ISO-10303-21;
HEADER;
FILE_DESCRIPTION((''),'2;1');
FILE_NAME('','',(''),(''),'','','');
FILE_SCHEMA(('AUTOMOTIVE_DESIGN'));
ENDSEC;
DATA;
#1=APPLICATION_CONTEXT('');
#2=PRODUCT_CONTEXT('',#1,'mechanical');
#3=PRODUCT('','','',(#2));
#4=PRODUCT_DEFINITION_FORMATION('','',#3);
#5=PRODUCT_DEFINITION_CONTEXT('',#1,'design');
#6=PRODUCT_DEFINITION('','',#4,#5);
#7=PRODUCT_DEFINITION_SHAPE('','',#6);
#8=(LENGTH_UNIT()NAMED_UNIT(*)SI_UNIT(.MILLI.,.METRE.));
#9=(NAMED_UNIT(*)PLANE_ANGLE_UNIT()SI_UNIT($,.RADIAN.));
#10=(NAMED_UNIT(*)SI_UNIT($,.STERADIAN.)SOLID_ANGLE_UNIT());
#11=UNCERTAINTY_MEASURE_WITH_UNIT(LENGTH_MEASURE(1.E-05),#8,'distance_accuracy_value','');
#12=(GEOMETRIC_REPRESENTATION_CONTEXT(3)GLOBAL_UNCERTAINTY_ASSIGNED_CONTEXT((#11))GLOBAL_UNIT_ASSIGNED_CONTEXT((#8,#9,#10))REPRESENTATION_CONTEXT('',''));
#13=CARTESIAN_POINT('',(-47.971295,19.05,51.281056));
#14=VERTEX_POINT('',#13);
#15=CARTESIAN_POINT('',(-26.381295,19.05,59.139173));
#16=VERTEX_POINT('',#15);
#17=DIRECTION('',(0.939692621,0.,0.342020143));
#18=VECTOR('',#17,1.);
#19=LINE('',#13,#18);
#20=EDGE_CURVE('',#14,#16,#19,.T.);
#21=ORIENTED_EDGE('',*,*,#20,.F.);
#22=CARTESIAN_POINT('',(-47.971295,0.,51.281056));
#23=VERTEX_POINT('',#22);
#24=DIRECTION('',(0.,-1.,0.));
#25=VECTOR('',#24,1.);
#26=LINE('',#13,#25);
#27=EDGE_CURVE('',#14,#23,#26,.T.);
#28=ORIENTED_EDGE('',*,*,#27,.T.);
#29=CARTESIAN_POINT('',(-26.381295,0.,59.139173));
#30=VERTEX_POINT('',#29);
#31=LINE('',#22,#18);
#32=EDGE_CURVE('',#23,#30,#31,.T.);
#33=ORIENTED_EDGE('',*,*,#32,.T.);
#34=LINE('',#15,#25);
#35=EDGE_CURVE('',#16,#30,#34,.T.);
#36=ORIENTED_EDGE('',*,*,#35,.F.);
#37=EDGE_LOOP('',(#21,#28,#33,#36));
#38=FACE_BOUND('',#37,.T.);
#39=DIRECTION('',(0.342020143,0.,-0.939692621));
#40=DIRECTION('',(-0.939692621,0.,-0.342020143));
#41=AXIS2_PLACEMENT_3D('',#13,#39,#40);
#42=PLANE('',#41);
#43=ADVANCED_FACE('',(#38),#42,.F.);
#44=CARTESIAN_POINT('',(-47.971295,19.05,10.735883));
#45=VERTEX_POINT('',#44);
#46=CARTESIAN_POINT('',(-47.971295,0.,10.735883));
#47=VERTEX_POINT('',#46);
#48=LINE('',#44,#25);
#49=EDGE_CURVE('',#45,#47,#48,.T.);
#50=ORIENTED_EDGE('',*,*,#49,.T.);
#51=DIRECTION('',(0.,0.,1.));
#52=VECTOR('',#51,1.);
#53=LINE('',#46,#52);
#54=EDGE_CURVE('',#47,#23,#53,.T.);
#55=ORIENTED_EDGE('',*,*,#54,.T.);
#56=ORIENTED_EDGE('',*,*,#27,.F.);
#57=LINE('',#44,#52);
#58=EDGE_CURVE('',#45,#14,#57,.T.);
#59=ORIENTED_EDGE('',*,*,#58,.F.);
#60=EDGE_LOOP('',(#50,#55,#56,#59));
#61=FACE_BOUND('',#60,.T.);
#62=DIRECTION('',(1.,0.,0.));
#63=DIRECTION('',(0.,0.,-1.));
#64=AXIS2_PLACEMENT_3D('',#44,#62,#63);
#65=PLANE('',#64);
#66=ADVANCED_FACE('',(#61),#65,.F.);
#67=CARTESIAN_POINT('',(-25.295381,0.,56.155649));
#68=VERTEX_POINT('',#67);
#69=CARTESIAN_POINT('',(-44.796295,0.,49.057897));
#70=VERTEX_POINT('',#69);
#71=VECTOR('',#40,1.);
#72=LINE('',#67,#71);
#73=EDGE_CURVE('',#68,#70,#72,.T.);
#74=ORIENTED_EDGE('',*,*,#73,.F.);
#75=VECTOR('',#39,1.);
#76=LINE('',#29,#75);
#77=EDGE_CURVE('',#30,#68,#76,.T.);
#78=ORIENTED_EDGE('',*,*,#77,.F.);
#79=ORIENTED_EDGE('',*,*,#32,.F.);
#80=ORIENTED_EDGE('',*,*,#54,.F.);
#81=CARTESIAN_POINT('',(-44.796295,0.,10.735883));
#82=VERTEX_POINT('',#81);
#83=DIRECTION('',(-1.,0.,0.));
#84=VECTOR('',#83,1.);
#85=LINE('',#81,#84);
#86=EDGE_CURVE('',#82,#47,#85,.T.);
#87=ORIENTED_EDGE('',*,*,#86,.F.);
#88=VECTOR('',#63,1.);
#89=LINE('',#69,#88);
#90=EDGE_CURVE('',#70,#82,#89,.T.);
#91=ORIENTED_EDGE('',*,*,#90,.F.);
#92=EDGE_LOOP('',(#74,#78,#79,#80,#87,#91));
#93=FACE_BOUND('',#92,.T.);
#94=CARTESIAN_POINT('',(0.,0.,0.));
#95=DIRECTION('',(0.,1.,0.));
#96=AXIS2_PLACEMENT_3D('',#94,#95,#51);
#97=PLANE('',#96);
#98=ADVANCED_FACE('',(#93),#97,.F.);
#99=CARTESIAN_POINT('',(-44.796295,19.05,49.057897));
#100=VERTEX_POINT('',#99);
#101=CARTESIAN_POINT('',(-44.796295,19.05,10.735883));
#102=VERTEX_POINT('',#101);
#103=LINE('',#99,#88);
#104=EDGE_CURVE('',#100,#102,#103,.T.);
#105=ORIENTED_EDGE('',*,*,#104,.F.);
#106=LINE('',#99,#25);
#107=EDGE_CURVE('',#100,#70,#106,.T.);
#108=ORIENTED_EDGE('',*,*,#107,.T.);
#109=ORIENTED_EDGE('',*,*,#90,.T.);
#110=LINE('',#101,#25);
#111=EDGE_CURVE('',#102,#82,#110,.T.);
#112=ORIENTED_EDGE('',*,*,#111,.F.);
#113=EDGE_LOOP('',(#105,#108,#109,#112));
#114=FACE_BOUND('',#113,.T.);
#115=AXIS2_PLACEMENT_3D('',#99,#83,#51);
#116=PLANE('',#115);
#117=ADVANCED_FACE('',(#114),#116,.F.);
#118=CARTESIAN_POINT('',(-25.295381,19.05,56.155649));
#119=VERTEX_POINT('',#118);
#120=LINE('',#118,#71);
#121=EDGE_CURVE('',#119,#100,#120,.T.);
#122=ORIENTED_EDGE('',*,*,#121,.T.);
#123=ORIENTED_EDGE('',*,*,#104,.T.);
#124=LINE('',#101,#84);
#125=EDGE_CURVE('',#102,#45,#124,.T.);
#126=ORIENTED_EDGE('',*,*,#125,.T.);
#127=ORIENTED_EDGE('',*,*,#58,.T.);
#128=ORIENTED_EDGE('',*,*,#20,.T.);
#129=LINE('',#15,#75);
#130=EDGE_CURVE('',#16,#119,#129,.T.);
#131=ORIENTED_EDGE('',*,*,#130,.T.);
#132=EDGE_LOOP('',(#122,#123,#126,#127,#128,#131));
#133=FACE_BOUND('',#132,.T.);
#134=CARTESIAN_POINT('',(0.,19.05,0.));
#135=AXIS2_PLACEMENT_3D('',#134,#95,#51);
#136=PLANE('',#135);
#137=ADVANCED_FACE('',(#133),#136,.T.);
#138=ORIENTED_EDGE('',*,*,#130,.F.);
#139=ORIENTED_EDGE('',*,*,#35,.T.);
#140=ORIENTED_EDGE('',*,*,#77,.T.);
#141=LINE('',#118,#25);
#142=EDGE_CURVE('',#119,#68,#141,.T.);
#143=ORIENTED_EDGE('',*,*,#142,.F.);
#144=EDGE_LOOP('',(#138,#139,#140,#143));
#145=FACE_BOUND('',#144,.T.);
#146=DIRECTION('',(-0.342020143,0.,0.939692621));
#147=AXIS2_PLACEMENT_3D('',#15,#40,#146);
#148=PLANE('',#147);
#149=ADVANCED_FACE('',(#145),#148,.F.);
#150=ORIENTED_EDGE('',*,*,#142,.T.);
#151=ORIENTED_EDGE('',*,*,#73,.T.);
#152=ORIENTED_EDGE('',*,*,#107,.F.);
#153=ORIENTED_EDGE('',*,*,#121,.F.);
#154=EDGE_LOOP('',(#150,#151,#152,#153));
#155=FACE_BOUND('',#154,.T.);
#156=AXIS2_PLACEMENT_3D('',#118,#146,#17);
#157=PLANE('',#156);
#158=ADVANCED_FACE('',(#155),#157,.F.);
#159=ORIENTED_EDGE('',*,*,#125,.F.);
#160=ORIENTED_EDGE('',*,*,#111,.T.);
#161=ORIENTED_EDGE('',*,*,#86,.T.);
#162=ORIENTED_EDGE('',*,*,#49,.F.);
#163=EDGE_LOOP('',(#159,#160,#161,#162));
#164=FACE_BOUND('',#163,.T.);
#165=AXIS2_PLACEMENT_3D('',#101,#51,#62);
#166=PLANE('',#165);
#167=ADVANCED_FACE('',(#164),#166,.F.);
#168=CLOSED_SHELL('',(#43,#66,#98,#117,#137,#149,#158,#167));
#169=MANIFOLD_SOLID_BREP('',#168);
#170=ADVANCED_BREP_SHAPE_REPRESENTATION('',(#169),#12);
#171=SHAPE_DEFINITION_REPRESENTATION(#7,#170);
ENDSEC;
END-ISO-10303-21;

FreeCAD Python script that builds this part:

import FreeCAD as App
import Part
import Sketcher
Q = App.Units.Quantity

doc = App.newDocument("Part")
params = doc.addObject("Spreadsheet::Sheet", "Params")
for row, (alias, value) in enumerate([
    ("sketch1_width", "0.125 in"),
    ("sketch1_length", "0.125 in"),
    ("pad1_length", "0.75 in"),
], start=1):
    params.set(f"A{row}", alias)
    params.set(f"B{row}", "=" + value)
    params.setAlias(f"B{row}", alias)

body = doc.addObject("PartDesign::Body", "Body")

# Sketch on XZ plane
sketch1 = body.newObject("Sketcher::SketchObject", "Sketch")
sketch1.AttachmentSupport = (doc.getObject("XZ_Plane"), [""])
sketch1.MapMode = "FlatFace"
sketch1.addGeometry([
    Part.LineSegment(App.Vector(-48, 10.7, 0), App.Vector(-48, 51.3, 0)),  # 0
    Part.LineSegment(App.Vector(-48, 51.3, 0), App.Vector(-26.4, 59.1, 0)),  # 1
    Part.LineSegment(App.Vector(-26.4, 59.1, 0), App.Vector(-25.3, 56.2, 0)),  # 2
    Part.LineSegment(App.Vector(-25.3, 56.2, 0), App.Vector(-44.8, 49.1, 0)),  # 3
    Part.LineSegment(App.Vector(-44.8, 49.1, 0), App.Vector(-44.8, 10.7, 0)),  # 4
    Part.LineSegment(App.Vector(-44.8, 10.7, 0), App.Vector(-48, 10.7, 0)),  # 5
], False)
sketch1.addConstraint([
    Sketcher.Constraint("Coincident", 0, 2, 1, 1),
    Sketcher.Constraint("Coincident", 1, 2, 2, 1),
    Sketcher.Constraint("Coincident", 2, 2, 3, 1),
    Sketcher.Constraint("Coincident", 3, 2, 4, 1),
    Sketcher.Constraint("Coincident", 4, 2, 5, 1),
    Sketcher.Constraint("Coincident", 5, 2, 0, 1),
    Sketcher.Constraint("Vertical", 0),
    Sketcher.Constraint("Vertical", 4),
    Sketcher.Constraint("Horizontal", 5),
    Sketcher.Constraint("Perpendicular", 1, 2),
    Sketcher.Constraint("Perpendicular", 2, 3),
    Sketcher.Constraint("Angle", 1, Q("20 deg")),
    Sketcher.Constraint("DistanceX", 5, 2, 5, 1, Q("0.125 in")),
    Sketcher.Constraint("DistanceX", 0, 2, 1, 2, Q("0.85 in")),
    Sketcher.Constraint("Distance", 2, Q("0.125 in")),
    Sketcher.Constraint("DistanceY", 0, 1, 0, 2, Q("40.545173 mm")),
    Sketcher.Constraint("DistanceX", 2, 2, -1, 1, Q("25.295381 mm")),
    Sketcher.Constraint("DistanceY", -1, 1, 2, 2, Q("56.155649 mm")),
])
sketch1.setExpression("Constraints[12]", "Params.sketch1_width")
sketch1.setExpression("Constraints[14]", "Params.sketch1_length")
pad1 = body.newObject("PartDesign::Pad", "Pad")
pad1.Profile = sketch1
pad1.setExpression("Length", "Params.pad1_length")
pad1.Reversed = True

doc.recompute()
